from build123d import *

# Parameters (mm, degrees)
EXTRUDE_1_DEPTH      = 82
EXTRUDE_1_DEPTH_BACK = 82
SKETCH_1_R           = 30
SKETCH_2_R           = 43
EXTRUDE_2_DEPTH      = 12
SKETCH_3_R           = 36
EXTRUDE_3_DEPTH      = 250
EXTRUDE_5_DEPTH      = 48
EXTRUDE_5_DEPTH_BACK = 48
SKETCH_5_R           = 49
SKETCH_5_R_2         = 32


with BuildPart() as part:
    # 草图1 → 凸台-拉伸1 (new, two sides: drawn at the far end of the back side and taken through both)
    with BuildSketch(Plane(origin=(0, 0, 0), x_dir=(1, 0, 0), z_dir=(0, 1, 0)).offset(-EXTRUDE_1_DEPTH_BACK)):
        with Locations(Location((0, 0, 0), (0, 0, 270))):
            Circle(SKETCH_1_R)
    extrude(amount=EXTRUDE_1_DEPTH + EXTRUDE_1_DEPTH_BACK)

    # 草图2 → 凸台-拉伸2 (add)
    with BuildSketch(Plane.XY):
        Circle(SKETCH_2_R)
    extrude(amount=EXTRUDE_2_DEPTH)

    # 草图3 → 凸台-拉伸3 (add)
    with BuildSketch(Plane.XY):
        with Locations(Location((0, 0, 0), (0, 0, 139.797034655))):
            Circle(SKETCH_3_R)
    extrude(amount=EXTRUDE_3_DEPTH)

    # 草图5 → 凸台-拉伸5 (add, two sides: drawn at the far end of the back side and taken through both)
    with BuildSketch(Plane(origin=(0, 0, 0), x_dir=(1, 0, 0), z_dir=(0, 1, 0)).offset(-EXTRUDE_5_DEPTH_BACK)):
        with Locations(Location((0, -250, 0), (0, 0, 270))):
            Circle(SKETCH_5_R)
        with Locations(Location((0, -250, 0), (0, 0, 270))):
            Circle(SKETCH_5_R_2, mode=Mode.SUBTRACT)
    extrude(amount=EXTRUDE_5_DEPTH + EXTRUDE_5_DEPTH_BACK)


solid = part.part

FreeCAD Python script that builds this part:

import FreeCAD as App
import Part
import Sketcher

V = App.Vector

doc = App.newDocument("Part")
params = doc.addObject("Spreadsheet::Sheet", "Params")
for row, (alias, value) in enumerate([
    ("sketch1_diameter", "60 mm"),
    ("pad1_length", "82 mm"),
    ("pad1_length2", "82 mm"),
    ("sketch2_diameter", "86 mm"),
    ("pad2_length", "12 mm"),
    ("sketch3_diameter", "72 mm"),
    ("pad3_length", "250 mm"),
    ("sketch4_diameter", "98 mm"),
    ("sketch4_diameter2", "64 mm"),
    ("pad4_length", "48 mm"),
    ("pad4_length2", "48 mm"),
], start=1):
    params.set(f"A{row}", alias)
    params.set(f"B{row}", "=" + value)
    params.setAlias(f"B{row}", alias)

body = doc.addObject("PartDesign::Body", "Body")

sketch1 = body.newObject("Sketcher::SketchObject", "Sketch")
sketch1.AttachmentSupport = (doc.getObject("XZ_Plane"), [""])
sketch1.MapMode = "FlatFace"
sketch1.addGeometry(Part.Circle(V(0, 0, 0), V(0, 0, 1), 30), False)
sketch1.addConstraint([
    Sketcher.Constraint("Coincident", 0, 3, -1, 1),
    Sketcher.Constraint("Diameter", 0, 60.0),
])
sketch1.setExpression("Constraints[1]", "Params.sketch1_diameter")
pad1 = body.newObject("PartDesign::Pad", "Pad")
pad1.Profile = sketch1
pad1.Type = "TwoLengths"
pad1.setExpression("Length", "Params.pad1_length")
pad1.setExpression("Length2", "Params.pad1_length2")
pad1.Reversed = True

sketch2 = body.newObject("Sketcher::SketchObject", "Sketch001")
sketch2.AttachmentSupport = (doc.getObject("XY_Plane"), [""])
sketch2.MapMode = "FlatFace"
sketch2.addGeometry(Part.Circle(V(0, 0, 0), V(0, 0, 1), 43), False)
sketch2.addConstraint([
    Sketcher.Constraint("Coincident", 0, 3, -1, 1),
    Sketcher.Constraint("Diameter", 0, 86.0),
])
sketch2.setExpression("Constraints[1]", "Params.sketch2_diameter")
pad2 = body.newObject("PartDesign::Pad", "Pad001")
pad2.Profile = sketch2
pad2.setExpression("Length", "Params.pad2_length")

sketch3 = body.newObject("Sketcher::SketchObject", "Sketch002")
sketch3.AttachmentSupport = (doc.getObject("XY_Plane"), [""])
sketch3.MapMode = "FlatFace"
sketch3.addGeometry(Part.Circle(V(0, 0, 0), V(0, 0, 1), 36), False)
sketch3.addConstraint([
    Sketcher.Constraint("Coincident", 0, 3, -1, 1),
    Sketcher.Constraint("Diameter", 0, 72.0),
])
sketch3.setExpression("Constraints[1]", "Params.sketch3_diameter")
pad3 = body.newObject("PartDesign::Pad", "Pad002")
pad3.Profile = sketch3
pad3.setExpression("Length", "Params.pad3_length")

sketch4 = body.newObject("Sketcher::SketchObject", "Sketch003")
sketch4.AttachmentSupport = (doc.getObject("XZ_Plane"), [""])
sketch4.MapMode = "FlatFace"
sketch4.addGeometry([
    Part.Circle(V(0, 250, 0), V(0, 0, 1), 49),
    Part.Circle(V(0, 250, 0), V(0, 0, 1), 32),
], False)
sketch4.addConstraint([
    Sketcher.Constraint("Coincident", 1, 3, 0, 3),
    Sketcher.Constraint("PointOnObject", 0, 3, -2),
    Sketcher.Constraint("Diameter", 0, 98.0),
    Sketcher.Constraint("Diameter", 1, 64.0),
    Sketcher.Constraint("DistanceY", -1, 1, 0, 3, 250.0),
])
sketch4.setExpression("Constraints[2]", "Params.sketch4_diameter")
sketch4.setExpression("Constraints[3]", "Params.sketch4_diameter2")
pad4 = body.newObject("PartDesign::Pad", "Pad003")
pad4.Profile = sketch4
pad4.Type = "TwoLengths"
pad4.setExpression("Length", "Params.pad4_length")
pad4.setExpression("Length2", "Params.pad4_length2")
pad4.Reversed = True

doc.recompute()
